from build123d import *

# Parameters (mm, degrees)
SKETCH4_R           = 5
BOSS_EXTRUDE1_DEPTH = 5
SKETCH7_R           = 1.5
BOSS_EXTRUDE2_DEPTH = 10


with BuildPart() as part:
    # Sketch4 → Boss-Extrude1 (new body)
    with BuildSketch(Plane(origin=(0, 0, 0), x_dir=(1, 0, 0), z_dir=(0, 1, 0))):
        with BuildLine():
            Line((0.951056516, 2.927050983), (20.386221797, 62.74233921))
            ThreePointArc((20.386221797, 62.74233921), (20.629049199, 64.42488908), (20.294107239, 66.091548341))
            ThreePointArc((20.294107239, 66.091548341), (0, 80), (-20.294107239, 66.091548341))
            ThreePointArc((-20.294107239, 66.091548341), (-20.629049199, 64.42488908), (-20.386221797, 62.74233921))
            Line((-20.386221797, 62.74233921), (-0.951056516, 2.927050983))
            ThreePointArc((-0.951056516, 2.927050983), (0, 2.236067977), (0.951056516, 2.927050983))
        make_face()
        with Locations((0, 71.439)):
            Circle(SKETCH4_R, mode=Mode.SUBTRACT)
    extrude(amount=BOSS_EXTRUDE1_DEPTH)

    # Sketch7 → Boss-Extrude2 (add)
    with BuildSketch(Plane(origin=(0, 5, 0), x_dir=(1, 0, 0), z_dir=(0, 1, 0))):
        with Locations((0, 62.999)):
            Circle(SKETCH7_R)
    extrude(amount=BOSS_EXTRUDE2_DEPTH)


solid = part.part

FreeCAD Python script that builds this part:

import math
import FreeCAD as App
import Part
import Sketcher

V = App.Vector
Q = App.Units.Quantity

doc = App.newDocument("Part")
body = doc.addObject("PartDesign::Body", "Body")

sketch1 = body.newObject("Sketcher::SketchObject", "Sketch")
sketch1.AttachmentSupport = (doc.getObject("XZ_Plane"), [""])
sketch1.MapMode = "FlatFace"
sketch1.addGeometry([
    Part.LineSegment(V(0.951057, -2.927051, 0), V(20.386222, -62.742339, 0)),
    Part.ArcOfCircle(Part.Circle(V(15.630939, -64.287424, 0), V(0, 0, 1), 5), math.radians(-21.15086), math.radians(18)),
    Part.ArcOfCircle(Part.Circle(V(0, -58.24, 0), V(0, 0, 1), 21.76), math.radians(-158.84914), math.radians(-21.15086)),
    Part.ArcOfCircle(Part.Circle(V(-15.630939, -64.287424, 0), V(0, 0, 1), 5), math.radians(162), math.radians(201.15086)),
    Part.LineSegment(V(-20.386222, -62.742339, 0), V(-0.951057, -2.927051, 0)),
    Part.ArcOfCircle(Part.Circle(V(0, -3.236068, 0), V(0, 0, 1), 1), math.radians(18), math.radians(162)),
    Part.Circle(V(0, -71.439, 0), V(0, 0, 1), 5),
], False)
sketch1.addConstraint([
    Sketcher.Constraint("Tangent", 0, 2, 1, 2),
    Sketcher.Constraint("Tangent", 1, 1, 2, 2),
    Sketcher.Constraint("Tangent", 2, 1, 3, 2),
    Sketcher.Constraint("Tangent", 3, 1, 4, 1),
    Sketcher.Constraint("Tangent", 4, 2, 5, 2),
    Sketcher.Constraint("Tangent", 5, 1, 0, 1),
    Sketcher.Constraint("Equal", 1, 3),
    Sketcher.Constraint("Equal", 3, 6),
    Sketcher.Constraint("Symmetric", 1, 3, 3, 3, -2),
    Sketcher.Constraint("PointOnObject", 5, 3, -2),
    Sketcher.Constraint("PointOnObject", 6, 3, -2),
    Sketcher.Constraint("Diameter", 6, Q("10 mm")),
    Sketcher.Constraint("Radius", 5, Q("1 mm")),
    Sketcher.Constraint("Angle", 0, Q("-72 deg")),
    Sketcher.Constraint("Radius", 2, Q("21.76 mm")),
    Sketcher.Constraint("DistanceY", 2, 3, -1, 1, Q("58.24 mm")),
    Sketcher.Constraint("DistanceY", 6, 3, -1, 1, Q("71.439 mm")),
    Sketcher.Constraint("DistanceX", -1, 1, 1, 3, Q("15.630939 mm")),
])
pad1 = body.newObject("PartDesign::Pad", "Pad")
pad1.Profile = sketch1
pad1.Length = 5
pad1.Reversed = True

sketch2 = body.newObject("Sketcher::SketchObject", "Sketch001")
sketch2.AttachmentSupport = (doc.getObject("XZ_Plane"), [""])
sketch2.MapMode = "FlatFace"
sketch2.AttachmentOffset = App.Placement(V(0, 0, -5), App.Rotation())
sketch2.addGeometry(Part.Circle(V(0, -62.999, 0), V(0, 0, 1), 1.5), False)
sketch2.addConstraint([
    Sketcher.Constraint("PointOnObject", 0, 3, -2),
    Sketcher.Constraint("Diameter", 0, Q("3 mm")),
    Sketcher.Constraint("DistanceY", 0, 3, -1, 1, Q("62.999 mm")),
])
pad2 = body.newObject("PartDesign::Pad", "Pad001")
pad2.Profile = sketch2
pad2.Length = 10
pad2.Reversed = True

doc.recompute()
